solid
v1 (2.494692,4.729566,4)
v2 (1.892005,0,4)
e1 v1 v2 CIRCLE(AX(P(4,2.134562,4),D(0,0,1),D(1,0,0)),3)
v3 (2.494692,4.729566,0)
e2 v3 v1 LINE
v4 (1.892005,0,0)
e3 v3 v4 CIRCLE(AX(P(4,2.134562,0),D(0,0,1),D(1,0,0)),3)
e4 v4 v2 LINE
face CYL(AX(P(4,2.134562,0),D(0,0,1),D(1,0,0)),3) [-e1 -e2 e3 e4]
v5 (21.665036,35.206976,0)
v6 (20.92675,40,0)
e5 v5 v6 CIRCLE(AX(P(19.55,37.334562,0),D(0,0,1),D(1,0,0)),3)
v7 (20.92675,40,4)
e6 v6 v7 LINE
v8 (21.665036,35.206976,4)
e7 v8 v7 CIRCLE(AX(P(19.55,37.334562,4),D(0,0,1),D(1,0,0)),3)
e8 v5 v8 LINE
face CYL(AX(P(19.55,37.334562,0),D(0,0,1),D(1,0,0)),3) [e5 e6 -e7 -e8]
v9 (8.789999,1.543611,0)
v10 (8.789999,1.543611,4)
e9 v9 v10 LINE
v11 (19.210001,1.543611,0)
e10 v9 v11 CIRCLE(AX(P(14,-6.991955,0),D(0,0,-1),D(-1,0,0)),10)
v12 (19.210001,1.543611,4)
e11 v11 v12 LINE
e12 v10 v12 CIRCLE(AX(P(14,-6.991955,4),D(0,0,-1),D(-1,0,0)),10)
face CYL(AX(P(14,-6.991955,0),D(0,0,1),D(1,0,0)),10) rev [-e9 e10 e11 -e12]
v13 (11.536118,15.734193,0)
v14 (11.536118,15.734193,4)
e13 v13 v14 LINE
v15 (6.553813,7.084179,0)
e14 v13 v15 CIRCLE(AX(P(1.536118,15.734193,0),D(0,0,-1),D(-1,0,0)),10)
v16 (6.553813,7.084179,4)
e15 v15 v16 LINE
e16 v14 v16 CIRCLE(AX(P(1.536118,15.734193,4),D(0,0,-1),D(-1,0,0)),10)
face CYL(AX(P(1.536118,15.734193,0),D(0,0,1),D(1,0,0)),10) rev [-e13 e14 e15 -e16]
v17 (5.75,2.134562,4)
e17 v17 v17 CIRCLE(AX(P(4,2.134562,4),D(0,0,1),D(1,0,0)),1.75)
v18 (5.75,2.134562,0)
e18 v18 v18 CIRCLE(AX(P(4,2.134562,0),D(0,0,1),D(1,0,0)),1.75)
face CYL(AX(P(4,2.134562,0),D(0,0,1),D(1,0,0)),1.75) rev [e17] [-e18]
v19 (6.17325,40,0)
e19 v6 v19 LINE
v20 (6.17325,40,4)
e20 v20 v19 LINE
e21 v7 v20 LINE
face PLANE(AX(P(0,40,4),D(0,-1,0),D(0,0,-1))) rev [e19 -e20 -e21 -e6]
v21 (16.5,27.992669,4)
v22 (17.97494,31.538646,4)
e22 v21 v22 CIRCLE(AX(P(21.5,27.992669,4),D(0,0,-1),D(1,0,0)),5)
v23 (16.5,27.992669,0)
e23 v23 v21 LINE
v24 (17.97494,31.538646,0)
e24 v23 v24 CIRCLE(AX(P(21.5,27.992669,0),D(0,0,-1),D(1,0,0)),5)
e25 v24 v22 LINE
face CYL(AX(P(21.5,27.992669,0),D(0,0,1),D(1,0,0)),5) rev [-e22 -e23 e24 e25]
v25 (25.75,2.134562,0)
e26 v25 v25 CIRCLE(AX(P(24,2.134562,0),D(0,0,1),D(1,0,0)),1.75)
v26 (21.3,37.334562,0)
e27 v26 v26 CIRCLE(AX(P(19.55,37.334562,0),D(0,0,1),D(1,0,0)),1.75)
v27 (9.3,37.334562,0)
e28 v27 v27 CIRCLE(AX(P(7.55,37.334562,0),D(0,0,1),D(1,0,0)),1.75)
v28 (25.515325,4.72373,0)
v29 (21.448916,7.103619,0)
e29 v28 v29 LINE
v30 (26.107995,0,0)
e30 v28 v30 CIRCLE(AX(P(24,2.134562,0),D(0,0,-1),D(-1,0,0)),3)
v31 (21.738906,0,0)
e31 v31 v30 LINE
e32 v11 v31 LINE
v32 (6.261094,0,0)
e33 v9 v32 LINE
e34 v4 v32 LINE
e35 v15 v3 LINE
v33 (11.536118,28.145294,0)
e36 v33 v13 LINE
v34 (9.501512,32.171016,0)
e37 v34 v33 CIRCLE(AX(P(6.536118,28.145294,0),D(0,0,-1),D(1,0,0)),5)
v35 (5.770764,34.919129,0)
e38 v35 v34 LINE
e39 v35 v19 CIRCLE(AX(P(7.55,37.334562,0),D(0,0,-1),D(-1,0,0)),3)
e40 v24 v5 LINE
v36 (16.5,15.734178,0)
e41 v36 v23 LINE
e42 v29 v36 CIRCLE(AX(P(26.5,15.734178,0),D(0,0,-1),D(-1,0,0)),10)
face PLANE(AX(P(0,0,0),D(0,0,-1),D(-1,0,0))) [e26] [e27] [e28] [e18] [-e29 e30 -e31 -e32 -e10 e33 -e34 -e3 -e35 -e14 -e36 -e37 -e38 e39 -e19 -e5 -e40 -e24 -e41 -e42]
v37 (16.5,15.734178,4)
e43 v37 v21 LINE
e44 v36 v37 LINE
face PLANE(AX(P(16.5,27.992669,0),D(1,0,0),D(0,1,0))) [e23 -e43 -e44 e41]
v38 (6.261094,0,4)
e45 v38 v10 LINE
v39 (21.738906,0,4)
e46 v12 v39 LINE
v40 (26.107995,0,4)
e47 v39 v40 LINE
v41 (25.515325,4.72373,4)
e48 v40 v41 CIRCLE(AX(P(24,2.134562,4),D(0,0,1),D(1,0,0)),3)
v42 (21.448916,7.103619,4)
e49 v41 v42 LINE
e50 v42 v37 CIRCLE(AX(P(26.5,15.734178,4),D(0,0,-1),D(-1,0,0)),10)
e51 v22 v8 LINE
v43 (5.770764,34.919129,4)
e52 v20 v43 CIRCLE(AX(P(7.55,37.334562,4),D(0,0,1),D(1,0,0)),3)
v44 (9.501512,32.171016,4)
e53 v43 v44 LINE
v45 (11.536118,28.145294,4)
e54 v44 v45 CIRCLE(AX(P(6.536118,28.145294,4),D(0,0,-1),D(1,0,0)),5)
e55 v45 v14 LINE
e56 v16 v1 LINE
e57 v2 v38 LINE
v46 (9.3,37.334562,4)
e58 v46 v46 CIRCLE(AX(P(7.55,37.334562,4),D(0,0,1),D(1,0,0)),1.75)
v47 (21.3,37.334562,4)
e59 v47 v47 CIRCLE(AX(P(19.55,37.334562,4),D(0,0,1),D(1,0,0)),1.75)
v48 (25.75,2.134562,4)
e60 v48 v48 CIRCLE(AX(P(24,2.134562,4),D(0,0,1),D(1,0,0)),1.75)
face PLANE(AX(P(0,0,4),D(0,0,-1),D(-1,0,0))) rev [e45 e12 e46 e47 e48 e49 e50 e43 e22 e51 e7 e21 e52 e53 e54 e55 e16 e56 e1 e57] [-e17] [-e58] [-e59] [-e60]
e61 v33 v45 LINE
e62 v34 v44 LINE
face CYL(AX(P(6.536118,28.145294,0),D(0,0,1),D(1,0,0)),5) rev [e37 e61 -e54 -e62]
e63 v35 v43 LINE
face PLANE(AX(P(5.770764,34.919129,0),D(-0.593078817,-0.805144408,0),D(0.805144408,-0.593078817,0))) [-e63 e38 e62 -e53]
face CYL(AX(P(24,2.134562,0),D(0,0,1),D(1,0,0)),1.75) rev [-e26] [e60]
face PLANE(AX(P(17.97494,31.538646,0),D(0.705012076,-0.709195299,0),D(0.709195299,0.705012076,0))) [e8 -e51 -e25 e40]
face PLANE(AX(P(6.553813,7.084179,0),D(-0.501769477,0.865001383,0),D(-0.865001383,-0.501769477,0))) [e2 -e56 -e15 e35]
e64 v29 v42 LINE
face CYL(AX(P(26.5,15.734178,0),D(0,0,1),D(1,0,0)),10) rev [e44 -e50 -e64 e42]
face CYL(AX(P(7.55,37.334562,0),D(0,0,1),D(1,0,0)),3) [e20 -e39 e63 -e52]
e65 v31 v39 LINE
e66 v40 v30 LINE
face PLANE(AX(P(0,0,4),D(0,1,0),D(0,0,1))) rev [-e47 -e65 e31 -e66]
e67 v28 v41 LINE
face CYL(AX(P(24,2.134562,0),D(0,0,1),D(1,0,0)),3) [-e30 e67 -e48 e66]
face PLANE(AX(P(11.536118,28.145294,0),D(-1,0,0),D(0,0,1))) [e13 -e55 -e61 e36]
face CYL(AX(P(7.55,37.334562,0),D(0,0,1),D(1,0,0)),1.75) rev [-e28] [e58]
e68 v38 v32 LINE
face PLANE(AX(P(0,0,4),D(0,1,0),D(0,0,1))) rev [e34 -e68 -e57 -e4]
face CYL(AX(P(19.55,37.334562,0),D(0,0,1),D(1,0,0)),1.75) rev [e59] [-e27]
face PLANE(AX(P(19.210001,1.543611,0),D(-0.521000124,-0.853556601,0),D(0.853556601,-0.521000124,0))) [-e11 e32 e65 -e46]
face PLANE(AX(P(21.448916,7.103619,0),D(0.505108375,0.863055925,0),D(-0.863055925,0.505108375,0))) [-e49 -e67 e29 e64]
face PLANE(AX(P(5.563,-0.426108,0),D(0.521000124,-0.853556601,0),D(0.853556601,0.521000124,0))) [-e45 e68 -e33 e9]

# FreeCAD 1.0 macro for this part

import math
import FreeCAD as App
import Part
import Sketcher

V = App.Vector
Q = App.Units.Quantity


def add_polygon(sketch, points):
    """Adds a closed chain of lines whose ends are joined by coincident constraints."""
    first, n = sketch.GeometryCount, len(points)
    for a, b in zip(points, points[1:] + points[:1]):
        sketch.addGeometry(Part.LineSegment(App.Vector(*a, 0), App.Vector(*b, 0)), False)
    for i in range(n):
        sketch.addConstraint(Sketcher.Constraint("Coincident", first + i, 2, first + (i + 1) % n, 1))

doc = App.newDocument("Part")
params = doc.addObject("Spreadsheet::Sheet", "Params")
for row, (alias, value) in enumerate([
    ("sketch1_width", "28 mm"),
    ("sketch1_height", "40 mm"),
    ("pad1_length", "4 mm"),
    ("sketch2_diameter", "3.5 mm"),
    ("sketch3_radius", "5 mm"),
    ("sketch3_radius2", "3 mm"),
    ("sketch3_radius3", "10 mm"),
    ("sketch3_width", "12 mm"),
], start=1):
    params.set(f"A{row}", alias)
    params.set(f"B{row}", "=" + value)
    params.setAlias(f"B{row}", alias)

body = doc.addObject("PartDesign::Body", "Body")

# Sketch on XY plane
sketch1 = doc.addObject("Sketcher::SketchObject", "Sketch")
body.addObject(sketch1)
sketch1.AttachmentSupport = (doc.XY_Plane, [""])
sketch1.MapMode = "FlatFace"
add_polygon(sketch1, [(0, 40), (0, 0), (28, 0), (28, 40)])  # lines 0-3
sketch1.addConstraint([
    Sketcher.Constraint("Vertical", 0),
    Sketcher.Constraint("Horizontal", 1),
    Sketcher.Constraint("Vertical", 2),
    Sketcher.Constraint("Horizontal", 3),
    Sketcher.Constraint("Coincident", 0, 2, -1, 1),
    Sketcher.Constraint("DistanceX", 1, 1, 1, 2, Q("28 mm")),
    Sketcher.Constraint("DistanceY", 0, 2, 0, 1, Q("40 mm")),
])
sketch1.setExpression("Constraints[9]", "Params.sketch1_width")
sketch1.setExpression("Constraints[10]", "Params.sketch1_height")
pad1 = doc.addObject("PartDesign::Pad", "Pad")
body.addObject(pad1)
pad1.Profile = sketch1
pad1.setExpression("Length", "Params.pad1_length")

# Sketch on XY plane
sketch2 = doc.addObject("Sketcher::SketchObject", "Sketch001")
body.addObject(sketch2)
sketch2.AttachmentSupport = (doc.XY_Plane, [""])
sketch2.MapMode = "FlatFace"
sketch2.AttachmentOffset = App.Placement(V(0, 0, 4), App.Rotation())
sketch2.addGeometry([
    Part.Circle(V(4, 2.1, 0), V(0, 0, 1), 1.8),
    Part.Circle(V(24, 2.1, 0), V(0, 0, 1), 1.8),
    Part.Circle(V(19.6, 37.3, 0), V(0, 0, 1), 1.8),
    Part.Circle(V(7.5, 37.3, 0), V(0, 0, 1), 1.8),
], False)
sketch2.addConstraint([
    Sketcher.Constraint("Equal", 0, 1),
    Sketcher.Constraint("Equal", 1, 2),
    Sketcher.Constraint("Equal", 2, 3),
    Sketcher.Constraint("Horizontal", 0, 3, 1, 3),
    Sketcher.Constraint("Horizontal", 2, 3, 3, 3),
    Sketcher.Constraint("Diameter", 0, Q("3.5 mm")),
    Sketcher.Constraint("DistanceX", -1, 1, 0, 3, Q("4 mm")),
    Sketcher.Constraint("DistanceX", -1, 1, 1, 3, Q("24 mm")),
    Sketcher.Constraint("DistanceX", 3, 3, 2, 3, Q("12 mm")),
    Sketcher.Constraint("DistanceY", 1, 3, 2, 3, Q("35.2 mm")),
    Sketcher.Constraint("DistanceX", -1, 1, 2, 3, Q("19.55 mm")),
    Sketcher.Constraint("DistanceY", -1, 1, 0, 3, Q("2.134562 mm")),
])
sketch2.setExpression("Constraints[5]", "Params.sketch2_diameter")
pocket1 = doc.addObject("PartDesign::Pocket", "Pocket")
body.addObject(pocket1)
pocket1.Profile = sketch2
pocket1.Type = "ThroughAll"

# Sketch on XY plane
sketch3 = doc.addObject("Sketcher::SketchObject", "Sketch002")
body.addObject(sketch3)
sketch3.AttachmentSupport = (doc.XY_Plane, [""])
sketch3.MapMode = "FlatFace"
sketch3.AttachmentOffset = App.Placement(V(0, 0, 4), App.Rotation())
add_polygon(sketch3, [(-7.4, 44), (-7.4, -4.9), (39.4, -4.9), (39.4, 44)])  # lines 0-3
sketch3.addGeometry(Part.LineSegment(V(11.5, 15.7, 0), V(11.5, 28.1, 0)), False)  # 4
sketch3.addGeometry(Part.ArcOfCircle(Part.Circle(V(6.5, 28.1, 0), V(0, 0, 1), 5), math.radians(0), math.radians(54)), False)  # 5
sketch3.addGeometry(Part.LineSegment(V(9.5, 32.2, 0), V(5.8, 34.9, 0)), False)  # 6
sketch3.addGeometry(Part.ArcOfCircle(Part.Circle(V(7.5, 37.3, 0), V(0, 0, 1), 3), math.radians(90), math.radians(234)), False)  # 7
sketch3.addGeometry(Part.LineSegment(V(7.5, 40.3, 0), V(19.6, 40.3, 0)), False)  # 8
sketch3.addGeometry(Part.ArcOfCircle(Part.Circle(V(19.6, 37.3, 0), V(0, 0, 1), 3), math.radians(-45), math.radians(90)), False)  # 9
sketch3.addGeometry(Part.LineSegment(V(21.7, 35.2, 0), V(18, 31.5, 0)), False)  # 10
sketch3.addGeometry(Part.ArcOfCircle(Part.Circle(V(21.5, 28, 0), V(0, 0, 1), 5), math.radians(135), math.radians(180)), False)  # 11
sketch3.addGeometry(Part.LineSegment(V(16.5, 28, 0), V(16.5, 15.7, 0)), False)  # 12
sketch3.addGeometry(Part.ArcOfCircle(Part.Circle(V(26.5, 15.7, 0), V(0, 0, 1), 10), math.radians(-180), math.radians(-120)), False)  # 13
sketch3.addGeometry(Part.LineSegment(V(21.4, 7.1, 0), V(25.5, 4.7, 0)), False)  # 14
sketch3.addGeometry(Part.ArcOfCircle(Part.Circle(V(24, 2.1, 0), V(0, 0, 1), 3), math.radians(-121), math.radians(60)), False)  # 15
sketch3.addGeometry(Part.LineSegment(V(22.4, -0.4, 0), V(19.2, 1.5, 0)), False)  # 16
sketch3.addGeometry(Part.ArcOfCircle(Part.Circle(V(14, -7, 0), V(0, 0, 1), 10), math.radians(59), math.radians(121)), False)  # 17
sketch3.addGeometry(Part.LineSegment(V(8.8, 1.5, 0), V(5.6, -0.4, 0)), False)  # 18
sketch3.addGeometry(Part.ArcOfCircle(Part.Circle(V(4, 2.1, 0), V(0, 0, 1), 3), math.radians(120), math.radians(301)), False)  # 19
sketch3.addGeometry(Part.LineSegment(V(2.5, 4.7, 0), V(6.6, 7.1, 0)), False)  # 20
sketch3.addGeometry(Part.ArcOfCircle(Part.Circle(V(1.5, 15.7, 0), V(0, 0, 1), 10), math.radians(-60), math.radians(0)), False)  # 21
sketch3.addConstraint([
    Sketcher.Constraint("Tangent", 4, 2, 5, 1),
    Sketcher.Constraint("Tangent", 5, 2, 6, 1),
    Sketcher.Constraint("Tangent", 6, 2, 7, 2),
    Sketcher.Constraint("Tangent", 7, 1, 8, 1),
    Sketcher.Constraint("Tangent", 8, 2, 9, 2),
    Sketcher.Constraint("Tangent", 9, 1, 10, 1),
    Sketcher.Constraint("Tangent", 10, 2, 11, 1),
    Sketcher.Constraint("Tangent", 11, 2, 12, 1),
    Sketcher.Constraint("Tangent", 12, 2, 13, 1),
    Sketcher.Constraint("Tangent", 13, 2, 14, 1),
    Sketcher.Constraint("Tangent", 14, 2, 15, 2),
    Sketcher.Constraint("Tangent", 15, 1, 16, 1),
    Sketcher.Constraint("Tangent", 16, 2, 17, 1),
    Sketcher.Constraint("Tangent", 17, 2, 18, 1),
    Sketcher.Constraint("Tangent", 18, 2, 19, 2),
    Sketcher.Constraint("Tangent", 19, 1, 20, 1),
    Sketcher.Constraint("Tangent", 20, 2, 21, 1),
    Sketcher.Constraint("Tangent", 21, 2, 4, 1),
    Sketcher.Constraint("Vertical", 0),
    Sketcher.Constraint("Horizontal", 1),
    Sketcher.Constraint("Vertical", 2),
    Sketcher.Constraint("Horizontal", 3),
    Sketcher.Constraint("Vertical", 4),
    Sketcher.Constraint("Horizontal", 8),
    Sketcher.Constraint("Vertical", 12),
    Sketcher.Constraint("Equal", 7, 9),
    Sketcher.Constraint("Equal", 5, 11),
    Sketcher.Constraint("Equal", 9, 15),
    Sketcher.Constraint("Equal", 13, 17),
    Sketcher.Constraint("Equal", 15, 19),
    Sketcher.Constraint("Equal", 17, 21),
    Sketcher.Constraint("Horizontal", 15, 3, 19, 3),
    Sketcher.Constraint("Horizontal", 16, 2, 17, 2),
    Sketcher.Constraint("Radius", 5, Q("5 mm")),
    Sketcher.Constraint("Radius", 7, Q("3 mm")),
    Sketcher.Constraint("Radius", 13, Q("10 mm")),
    Sketcher.Constraint("DistanceX", 8, 1, 8, 2, Q("12 mm")),
    Sketcher.Constraint("DistanceX", -1, 1, 15, 3, Q("24 mm")),
    Sketcher.Constraint("DistanceX", -1, 1, 17, 3, Q("14 mm")),
    Sketcher.Constraint("DistanceX", -1, 1, 11, 3, Q("21.5 mm")),
    Sketcher.Constraint("DistanceY", 15, 3, 9, 3, Q("35.2 mm")),
    Sketcher.Constraint("DistanceX", -1, 1, 7, 3, Q("7.55 mm")),
    Sketcher.Constraint("DistanceX", -1, 1, 16, 2, Q("19.210001 mm")),
    Sketcher.Constraint("DistanceY", 4, 1, 4, 2, Q("12.411101 mm")),
    Sketcher.Constraint("DistanceY", 0, 2, 0, 1, Q("48.920918 mm")),
    Sketcher.Constraint("DistanceY", 12, 2, 12, 1, Q("12.258491 mm")),
    Sketcher.Constraint("DistanceX", 21, 2, 13, 2, Q("9.912798 mm")),
    Sketcher.Constraint("Distance", 6, Q("4.633639 mm")),
    Sketcher.Constraint("Distance", 14, Q("4.71164 mm")),
    Sketcher.Constraint("DistanceX", 1, 1, 1, 2, Q("46.756276 mm")),
    Sketcher.Constraint("DistanceY", -1, 1, 11, 3, Q("27.992669 mm")),
    Sketcher.Constraint("DistanceX", 0, 2, -1, 1, Q("7.350549 mm")),
    Sketcher.Constraint("DistanceY", 0, 2, -1, 1, Q("4.910061 mm")),
])
sketch3.setExpression("Constraints[37]", "Params.sketch3_radius")
sketch3.setExpression("Constraints[38]", "Params.sketch3_radius2")
sketch3.setExpression("Constraints[39]", "Params.sketch3_radius3")
sketch3.setExpression("Constraints[40]", "Params.sketch3_width")
pocket2 = doc.addObject("PartDesign::Pocket", "Pocket001")
body.addObject(pocket2)
pocket2.Profile = sketch3
pocket2.Type = "ThroughAll"

doc.recompute()
